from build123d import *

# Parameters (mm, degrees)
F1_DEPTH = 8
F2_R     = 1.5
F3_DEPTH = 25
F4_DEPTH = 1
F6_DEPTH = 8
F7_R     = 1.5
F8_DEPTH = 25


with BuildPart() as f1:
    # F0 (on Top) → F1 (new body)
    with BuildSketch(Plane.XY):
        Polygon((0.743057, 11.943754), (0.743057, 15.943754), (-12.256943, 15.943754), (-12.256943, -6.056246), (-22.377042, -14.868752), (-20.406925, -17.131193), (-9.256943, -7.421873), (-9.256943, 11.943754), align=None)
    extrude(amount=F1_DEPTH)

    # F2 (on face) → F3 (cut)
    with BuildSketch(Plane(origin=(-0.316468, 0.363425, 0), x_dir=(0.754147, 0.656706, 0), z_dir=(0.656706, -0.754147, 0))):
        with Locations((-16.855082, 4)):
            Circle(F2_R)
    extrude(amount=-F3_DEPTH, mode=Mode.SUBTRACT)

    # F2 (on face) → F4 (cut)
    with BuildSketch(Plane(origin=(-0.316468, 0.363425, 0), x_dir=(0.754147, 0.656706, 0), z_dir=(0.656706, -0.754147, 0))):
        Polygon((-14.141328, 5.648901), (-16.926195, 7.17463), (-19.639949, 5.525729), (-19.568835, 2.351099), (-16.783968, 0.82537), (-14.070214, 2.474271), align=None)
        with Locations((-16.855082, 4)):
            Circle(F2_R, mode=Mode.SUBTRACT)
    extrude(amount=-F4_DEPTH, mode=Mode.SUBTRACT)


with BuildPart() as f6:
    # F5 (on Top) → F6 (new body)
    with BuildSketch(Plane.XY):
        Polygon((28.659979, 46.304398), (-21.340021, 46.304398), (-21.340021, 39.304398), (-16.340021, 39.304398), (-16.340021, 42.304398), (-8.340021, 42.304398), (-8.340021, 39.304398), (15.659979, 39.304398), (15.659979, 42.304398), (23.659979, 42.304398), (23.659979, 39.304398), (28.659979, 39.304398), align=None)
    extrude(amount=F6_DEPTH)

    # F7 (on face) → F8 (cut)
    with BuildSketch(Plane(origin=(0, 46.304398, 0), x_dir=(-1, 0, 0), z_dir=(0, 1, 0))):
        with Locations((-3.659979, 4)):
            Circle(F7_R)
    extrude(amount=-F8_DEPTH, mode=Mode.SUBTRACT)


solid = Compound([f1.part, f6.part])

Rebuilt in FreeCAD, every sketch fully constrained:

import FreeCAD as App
import Part
import Sketcher
from FreeCAD import Vector
Q = App.Units.Quantity


def add_polygon(sketch, points):
    """Adds a closed chain of lines whose ends are joined by coincident constraints."""
    first, n = sketch.GeometryCount, len(points)
    for a, b in zip(points, points[1:] + points[:1]):
        sketch.addGeometry(Part.LineSegment(App.Vector(*a, 0), App.Vector(*b, 0)), False)
    for i in range(n):
        sketch.addConstraint(Sketcher.Constraint("Coincident", first + i, 2, first + (i + 1) % n, 1))

doc = App.newDocument("Part")
params = doc.addObject("Spreadsheet::Sheet", "Params")
for row, (alias, value) in enumerate([
    ("sketch1_width", "13 mm"),
    ("sketch1_width2", "10 mm"),
    ("sketch1_height", "4 mm"),
    ("sketch1_height2", "22 mm"),
    ("sketch1_length", "3 mm"),
    ("pad1_length", "8 mm"),
    ("sketch2_diameter", "3 mm"),
    ("pocket1_length", "25 mm"),
    ("sketch3_diameter", "3 mm"),
    ("pocket2_length", "1 mm"),
    ("sketch4_width", "50 mm"),
    ("sketch4_width2", "5 mm"),
    ("sketch4_width3", "8 mm"),
    ("sketch4_height", "7 mm"),
    ("sketch4_height2", "3 mm"),
    ("pad2_length", "8 mm"),
    ("sketch5_diameter", "3 mm"),
    ("pocket3_length", "25 mm"),
], start=1):
    params.set(f"A{row}", alias)
    params.set(f"B{row}", "=" + value)
    params.setAlias(f"B{row}", alias)

body = doc.addObject("PartDesign::Body", "Body")

# Sketch on XY plane
sketch1 = body.newObject("Sketcher::SketchObject", "Sketch")
sketch1.AttachmentSupport = (doc.getObject("XY_Plane"), [""])
sketch1.MapMode = "FlatFace"
add_polygon(sketch1, [(0.7, 11.9), (0.7, 15.9), (-12.3, 15.9), (-12.3, -6.1), (-22.4, -14.9), (-20.4, -17.1), (-9.3, -7.4), (-9.3, 11.9)])  # lines 0-7
sketch1.addConstraint([
    Sketcher.Constraint("Vertical", 0),
    Sketcher.Constraint("Horizontal", 1),
    Sketcher.Constraint("Vertical", 2),
    Sketcher.Constraint("Vertical", 6),
    Sketcher.Constraint("Horizontal", 7),
    Sketcher.Constraint("Perpendicular", 3, 4),
    Sketcher.Constraint("Perpendicular", 4, 5),
    Sketcher.Constraint("DistanceX", 1, 2, 1, 1, Q("13 mm")),
    Sketcher.Constraint("DistanceX", 7, 1, 7, 2, Q("10 mm")),
    Sketcher.Constraint("DistanceY", 0, 1, 0, 2, Q("4 mm")),
    Sketcher.Constraint("DistanceY", 2, 2, 2, 1, Q("22 mm")),
    Sketcher.Constraint("Distance", 4, Q("3 mm")),
    Sketcher.Constraint("DistanceX", 3, 2, 2, 2, Q("10.120099 mm")),
    Sketcher.Constraint("Distance", 5, Q("14.784891 mm")),
    Sketcher.Constraint("DistanceX", 3, 2, -1, 1, Q("22.377042 mm")),
    Sketcher.Constraint("DistanceY", -1, 1, 0, 2, Q("15.943754 mm")),
])
sketch1.setExpression("Constraints[15]", "Params.sketch1_width")
sketch1.setExpression("Constraints[16]", "Params.sketch1_width2")
sketch1.setExpression("Constraints[17]", "Params.sketch1_height")
sketch1.setExpression("Constraints[18]", "Params.sketch1_height2")
sketch1.setExpression("Constraints[19]", "Params.sketch1_length")
pad1 = body.newObject("PartDesign::Pad", "Pad")
pad1.Profile = sketch1
pad1.setExpression("Length", "Params.pad1_length")

# Sketch on an angled plane
sketch2 = body.newObject("Sketcher::SketchObject", "Sketch001")
sketch2.Placement = App.Placement(Vector(-0.316468, 0.363425, 0), App.Rotation(Vector(0.754146824, 0.656705846, 0), Vector(0, 0, 1), Vector(0.656705846, -0.754146824, 0), "ZXY"))
sketch2.addGeometry(Part.Circle(Vector(-16.9, 4, 0), Vector(0, 0, 1), 1.5), False)
sketch2.addConstraint([
    Sketcher.Constraint("Diameter", 0, Q("3 mm")),
    Sketcher.Constraint("DistanceY", -1, 1, 0, 3, Q("4 mm")),
    Sketcher.Constraint("DistanceX", 0, 3, -1, 1, Q("16.855082 mm")),
])
sketch2.setExpression("Constraints[0]", "Params.sketch2_diameter")
pocket1 = body.newObject("PartDesign::Pocket", "Pocket")
pocket1.Profile = sketch2
pocket1.setExpression("Length", "Params.pocket1_length")

# Sketch on an angled plane
sketch3 = body.newObject("Sketcher::SketchObject", "Sketch002")
sketch3.Placement = App.Placement(Vector(-0.316468, 0.363425, 0), App.Rotation(Vector(0.754146824, 0.656705846, 0), Vector(0, 0, 1), Vector(0.656705846, -0.754146824, 0), "ZXY"))
add_polygon(sketch3, [(-14.1, 5.6), (-16.9, 7.2), (-19.6, 5.5), (-19.6, 2.4), (-16.8, 0.8), (-14.1, 2.5)])  # lines 0-5
sketch3.addGeometry(Part.Circle(Vector(-16.9, 4, 0), Vector(0, 0, 1), 1.5), False)  # 6
sketch3.addConstraint([
    Sketcher.Constraint("Parallel", 0, 3),
    Sketcher.Constraint("Parallel", 1, 4),
    Sketcher.Constraint("Parallel", 2, 5),
    Sketcher.Constraint("Equal", 0, 1),
    Sketcher.Constraint("Equal", 1, 2),
    Sketcher.Constraint("Equal", 2, 3),
    Sketcher.Constraint("Diameter", 6, Q("3 mm")),
    Sketcher.Constraint("DistanceY", -1, 1, 6, 3, Q("4 mm")),
    Sketcher.Constraint("DistanceY", -1, 1, 2, 2, Q("2.351099 mm")),
    Sketcher.Constraint("DistanceY", -1, 1, 5, 2, Q("5.648901 mm")),
    Sketcher.Constraint("DistanceY", 1, 2, 0, 2, Q("1.648901 mm")),
    Sketcher.Constraint("DistanceY", -1, 1, 0, 2, Q("7.17463 mm")),
    Sketcher.Constraint("DistanceX", 1, 2, -1, 1, Q("19.639949 mm")),
    Sketcher.Constraint("DistanceX", 3, 2, -1, 1, Q("16.783968 mm")),
    Sketcher.Constraint("DistanceX", 6, 3, -1, 1, Q("16.855082 mm")),
])
sketch3.setExpression("Constraints[12]", "Params.sketch3_diameter")
pocket2 = body.newObject("PartDesign::Pocket", "Pocket001")
pocket2.Profile = sketch3
pocket2.setExpression("Length", "Params.pocket2_length")
body2 = doc.addObject("PartDesign::Body", "Body001")

# Sketch on XY plane
sketch4 = body2.newObject("Sketcher::SketchObject", "Sketch003")
sketch4.AttachmentSupport = (doc.getObject("XY_Plane001"), [""])
sketch4.MapMode = "FlatFace"
add_polygon(sketch4, [(28.7, 46.3), (-21.3, 46.3), (-21.3, 39.3), (-16.3, 39.3), (-16.3, 42.3), (-8.3, 42.3), (-8.3, 39.3), (15.7, 39.3), (15.7, 42.3), (23.7, 42.3), (23.7, 39.3), (28.7, 39.3)])  # lines 0-11
sketch4.addConstraint([
    Sketcher.Constraint("Horizontal", 0),
    Sketcher.Constraint("Vertical", 1),
    Sketcher.Constraint("Horizontal", 2),
    Sketcher.Constraint("Vertical", 3),
    Sketcher.Constraint("Horizontal", 4),
    Sketcher.Constraint("Vertical", 5),
    Sketcher.Constraint("Horizontal", 6),
    Sketcher.Constraint("Vertical", 7),
    Sketcher.Constraint("Horizontal", 8),
    Sketcher.Constraint("Vertical", 9),
    Sketcher.Constraint("Horizontal", 10),
    Sketcher.Constraint("Vertical", 11),
    Sketcher.Constraint("Horizontal", 2, 2, 5, 2),
    Sketcher.Constraint("Horizontal", 4, 2, 7, 2),
    Sketcher.Constraint("Horizontal", 6, 2, 9, 2),
    Sketcher.Constraint("Equal", 4, 8),
    Sketcher.Constraint("Equal", 2, 10),
    Sketcher.Constraint("DistanceX", 0, 2, 0, 1, Q("50 mm")),
    Sketcher.Constraint("DistanceX", 2, 1, 2, 2, Q("5 mm")),
    Sketcher.Constraint("DistanceX", 4, 1, 4, 2, Q("8 mm")),
    Sketcher.Constraint("DistanceY", 1, 2, 1, 1, Q("7 mm")),
    Sketcher.Constraint("DistanceY", 3, 1, 3, 2, Q("3 mm")),
    Sketcher.Constraint("DistanceX", 0, 2, -1, 1, Q("21.340021 mm")),
    Sketcher.Constraint("DistanceY", -1, 1, 0, 2, Q("46.304398 mm")),
])
sketch4.setExpression("Constraints[29]", "Params.sketch4_width")
sketch4.setExpression("Constraints[30]", "Params.sketch4_width2")
sketch4.setExpression("Constraints[31]", "Params.sketch4_width3")
sketch4.setExpression("Constraints[32]", "Params.sketch4_height")
sketch4.setExpression("Constraints[33]", "Params.sketch4_height2")
pad2 = body2.newObject("PartDesign::Pad", "Pad001")
pad2.Profile = sketch4
pad2.setExpression("Length", "Params.pad2_length")

# Sketch on XZ plane
sketch5 = body2.newObject("Sketcher::SketchObject", "Sketch004")
sketch5.AttachmentSupport = (doc.getObject("XZ_Plane001"), [""])
sketch5.MapMode = "FlatFace"
sketch5.AttachmentOffset = App.Placement(Vector(0, 0, -46.304398), App.Rotation())
sketch5.addGeometry(Part.Circle(Vector(3.7, 4, 0), Vector(0, 0, 1), 1.5), False)
sketch5.addConstraint([
    Sketcher.Constraint("Diameter", 0, Q("3 mm")),
    Sketcher.Constraint("DistanceY", -1, 1, 0, 3, Q("4 mm")),
    Sketcher.Constraint("DistanceX", -1, 1, 0, 3, Q("3.659979 mm")),
])
sketch5.setExpression("Constraints[0]", "Params.sketch5_diameter")
pocket3 = body2.newObject("PartDesign::Pocket", "Pocket002")
pocket3.Profile = sketch5
pocket3.setExpression("Length", "Params.pocket3_length")
pocket3.Reversed = True

doc.recompute()
